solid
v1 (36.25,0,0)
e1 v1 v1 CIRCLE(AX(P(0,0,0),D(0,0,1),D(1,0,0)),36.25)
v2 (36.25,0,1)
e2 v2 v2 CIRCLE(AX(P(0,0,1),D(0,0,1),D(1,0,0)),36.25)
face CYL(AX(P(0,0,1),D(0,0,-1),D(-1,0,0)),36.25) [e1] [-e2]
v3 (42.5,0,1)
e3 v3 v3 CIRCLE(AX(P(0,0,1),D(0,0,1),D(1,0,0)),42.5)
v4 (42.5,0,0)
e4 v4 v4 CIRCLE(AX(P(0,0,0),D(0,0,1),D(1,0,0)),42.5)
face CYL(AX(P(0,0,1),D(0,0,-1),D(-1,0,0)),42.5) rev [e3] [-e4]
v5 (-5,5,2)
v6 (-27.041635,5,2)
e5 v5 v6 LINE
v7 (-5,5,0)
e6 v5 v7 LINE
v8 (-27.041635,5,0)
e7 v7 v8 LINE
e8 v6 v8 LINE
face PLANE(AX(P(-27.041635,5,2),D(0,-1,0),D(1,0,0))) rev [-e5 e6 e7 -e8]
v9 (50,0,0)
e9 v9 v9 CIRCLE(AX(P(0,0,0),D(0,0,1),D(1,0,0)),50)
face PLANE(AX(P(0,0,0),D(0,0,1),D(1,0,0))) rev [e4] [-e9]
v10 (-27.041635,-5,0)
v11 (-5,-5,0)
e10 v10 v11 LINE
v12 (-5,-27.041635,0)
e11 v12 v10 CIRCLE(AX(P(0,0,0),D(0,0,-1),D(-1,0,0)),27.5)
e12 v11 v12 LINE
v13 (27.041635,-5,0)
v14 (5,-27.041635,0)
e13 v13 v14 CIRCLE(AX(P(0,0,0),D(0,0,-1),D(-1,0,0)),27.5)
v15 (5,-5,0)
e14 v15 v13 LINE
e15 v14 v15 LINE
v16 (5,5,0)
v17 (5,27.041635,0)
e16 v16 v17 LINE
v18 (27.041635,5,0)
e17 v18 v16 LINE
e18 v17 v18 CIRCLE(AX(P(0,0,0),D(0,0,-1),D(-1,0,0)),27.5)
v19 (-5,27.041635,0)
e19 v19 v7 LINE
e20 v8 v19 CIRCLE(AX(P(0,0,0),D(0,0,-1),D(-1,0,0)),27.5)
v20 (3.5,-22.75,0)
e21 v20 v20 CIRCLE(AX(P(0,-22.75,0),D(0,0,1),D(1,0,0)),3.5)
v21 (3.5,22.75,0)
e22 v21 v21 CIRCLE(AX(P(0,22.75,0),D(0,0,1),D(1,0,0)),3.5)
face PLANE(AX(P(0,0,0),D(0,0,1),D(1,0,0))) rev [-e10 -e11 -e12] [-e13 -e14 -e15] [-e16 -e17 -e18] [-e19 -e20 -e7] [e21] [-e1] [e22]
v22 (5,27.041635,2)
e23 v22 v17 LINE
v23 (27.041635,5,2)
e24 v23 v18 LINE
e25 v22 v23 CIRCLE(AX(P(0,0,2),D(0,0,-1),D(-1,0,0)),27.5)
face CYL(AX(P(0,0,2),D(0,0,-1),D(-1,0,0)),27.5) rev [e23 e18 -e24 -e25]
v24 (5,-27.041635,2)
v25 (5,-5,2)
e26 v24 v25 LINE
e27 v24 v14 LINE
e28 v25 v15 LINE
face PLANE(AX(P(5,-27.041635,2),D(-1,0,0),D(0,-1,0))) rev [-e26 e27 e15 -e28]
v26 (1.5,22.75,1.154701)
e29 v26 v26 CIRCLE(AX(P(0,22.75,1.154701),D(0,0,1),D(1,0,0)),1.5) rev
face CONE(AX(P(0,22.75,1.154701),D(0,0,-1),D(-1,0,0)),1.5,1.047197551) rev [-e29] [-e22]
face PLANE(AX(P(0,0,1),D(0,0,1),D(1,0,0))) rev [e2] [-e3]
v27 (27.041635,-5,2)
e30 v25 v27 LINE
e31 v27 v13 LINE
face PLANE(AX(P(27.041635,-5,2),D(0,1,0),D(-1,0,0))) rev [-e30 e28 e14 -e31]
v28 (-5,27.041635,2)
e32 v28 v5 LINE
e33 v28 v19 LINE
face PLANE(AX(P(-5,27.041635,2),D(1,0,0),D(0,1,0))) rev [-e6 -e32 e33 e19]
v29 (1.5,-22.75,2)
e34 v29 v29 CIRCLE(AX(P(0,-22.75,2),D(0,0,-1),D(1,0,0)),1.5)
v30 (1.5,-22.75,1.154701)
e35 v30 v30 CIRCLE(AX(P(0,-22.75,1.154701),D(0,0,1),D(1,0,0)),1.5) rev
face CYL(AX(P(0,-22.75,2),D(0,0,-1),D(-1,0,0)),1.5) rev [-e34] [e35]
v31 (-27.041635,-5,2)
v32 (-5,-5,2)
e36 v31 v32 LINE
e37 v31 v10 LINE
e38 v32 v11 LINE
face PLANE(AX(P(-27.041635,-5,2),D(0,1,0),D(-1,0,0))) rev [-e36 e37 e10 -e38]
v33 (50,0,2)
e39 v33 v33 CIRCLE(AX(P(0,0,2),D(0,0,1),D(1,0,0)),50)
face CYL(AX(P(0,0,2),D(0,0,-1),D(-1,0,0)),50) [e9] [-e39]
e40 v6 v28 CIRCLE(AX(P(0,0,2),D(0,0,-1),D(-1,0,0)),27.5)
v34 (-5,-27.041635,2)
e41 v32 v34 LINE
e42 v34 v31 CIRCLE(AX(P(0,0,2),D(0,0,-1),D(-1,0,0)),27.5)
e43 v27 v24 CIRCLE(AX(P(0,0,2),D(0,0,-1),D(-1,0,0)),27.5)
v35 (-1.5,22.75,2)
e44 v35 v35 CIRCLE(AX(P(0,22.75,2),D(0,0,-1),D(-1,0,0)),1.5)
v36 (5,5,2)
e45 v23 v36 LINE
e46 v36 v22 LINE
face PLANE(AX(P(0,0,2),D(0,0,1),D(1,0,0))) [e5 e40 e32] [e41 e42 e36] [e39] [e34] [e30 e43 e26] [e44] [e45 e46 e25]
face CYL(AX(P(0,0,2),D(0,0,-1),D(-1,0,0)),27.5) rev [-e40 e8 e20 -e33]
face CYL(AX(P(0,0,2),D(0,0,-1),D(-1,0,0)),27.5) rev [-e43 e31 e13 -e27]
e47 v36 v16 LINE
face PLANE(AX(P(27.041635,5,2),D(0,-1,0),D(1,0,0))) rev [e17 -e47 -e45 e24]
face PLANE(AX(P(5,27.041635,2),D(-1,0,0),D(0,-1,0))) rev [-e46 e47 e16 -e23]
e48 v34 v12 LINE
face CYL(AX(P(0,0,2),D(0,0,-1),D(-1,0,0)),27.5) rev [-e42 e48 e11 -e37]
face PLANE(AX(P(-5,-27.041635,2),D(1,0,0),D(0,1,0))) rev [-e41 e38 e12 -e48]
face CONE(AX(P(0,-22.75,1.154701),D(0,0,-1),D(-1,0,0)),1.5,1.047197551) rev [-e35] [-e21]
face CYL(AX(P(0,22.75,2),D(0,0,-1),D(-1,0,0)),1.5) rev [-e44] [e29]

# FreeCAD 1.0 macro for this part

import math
import FreeCAD as App
import Part
import Sketcher

V = App.Vector
Q = App.Units.Quantity


def edges_at(feature, points):
    """Names of the edges that pass closest to the given points."""
    edges = feature.Shape.Edges
    near = lambda p: min(range(len(edges)), key=lambda i: edges[i].distToShape(Part.Vertex(*p))[0])
    return sorted({f"Edge{near(p) + 1}" for p in points})

doc = App.newDocument("Part")
body = doc.addObject("PartDesign::Body", "Body")

sketch1 = body.newObject("Sketcher::SketchObject", "Sketch")
sketch1.AttachmentSupport = (doc.getObject("XY_Plane"), [""])
sketch1.MapMode = "FlatFace"
sketch1.addGeometry(Part.Circle(V(0, 0, 0), V(0, 0, 1), 50), False)
sketch1.addConstraint([
    Sketcher.Constraint("Coincident", 0, 3, -1, 1),
    Sketcher.Constraint("Diameter", 0, Q("100 mm")),
])
pad1 = body.newObject("PartDesign::Pad", "Pad")
pad1.Profile = sketch1
pad1.Length = 2

sketch2 = body.newObject("Sketcher::SketchObject", "Sketch001")
sketch2.AttachmentSupport = (doc.getObject("XY_Plane"), [""])
sketch2.MapMode = "FlatFace"
sketch2.addGeometry([
    Part.Circle(V(0, 0, 0), V(0, 0, 1), 42),
    Part.Circle(V(0, 0, 0), V(0, 0, 1), 36),
], False)
sketch2.addConstraint([
    Sketcher.Constraint("Coincident", 0, 3, -1, 1),
    Sketcher.Constraint("Coincident", 1, 3, -1, 1),
    Sketcher.Constraint("Diameter", 0, Q("85 mm")),
    Sketcher.Constraint("Diameter", 1, Q("72.5 mm")),
])
pocket1 = body.newObject("PartDesign::Pocket", "Pocket")
pocket1.Profile = sketch2
pocket1.Length = 1
pocket1.Reversed = True

sketch3 = body.newObject("Sketcher::SketchObject", "Sketch002")
sketch3.AttachmentSupport = (doc.getObject("XY_Plane"), [""])
sketch3.MapMode = "FlatFace"
sketch3.addGeometry([
    Part.Circle(V(0, 22.8, 0), V(0, 0, 1), 1.5),
    Part.Circle(V(0, -22.8, 0), V(0, 0, 1), 1.5),
    Part.LineSegment(V(5, 5, 0), V(5, 27, 0)),
    Part.ArcOfCircle(Part.Circle(V(0, 0, 0), V(0, 0, 1), 27.5), math.radians(10), math.radians(80)),
    Part.LineSegment(V(27, 5, 0), V(5, 5, 0)),
    Part.LineSegment(V(-5, 27, 0), V(-5, 5, 0)),
    Part.LineSegment(V(-5, 5, 0), V(-27, 5, 0)),
    Part.ArcOfCircle(Part.Circle(V(0, 0, 0), V(0, 0, 1), 27.5), math.radians(100), math.radians(170)),
    Part.LineSegment(V(-27, -5, 0), V(-5, -5, 0)),
    Part.LineSegment(V(-5, -5, 0), V(-5, -27, 0)),
    Part.ArcOfCircle(Part.Circle(V(0, 0, 0), V(0, 0, 1), 27.5), math.radians(-170), math.radians(-100)),
    Part.LineSegment(V(5, -27, 0), V(5, -5, 0)),
    Part.LineSegment(V(5, -5, 0), V(27, -5, 0)),
    Part.ArcOfCircle(Part.Circle(V(0, 0, 0), V(0, 0, 1), 27.5), math.radians(-80), math.radians(-10)),
], False)
sketch3.addConstraint([
    Sketcher.Constraint("Coincident", 2, 2, 3, 2),
    Sketcher.Constraint("Coincident", 3, 1, 4, 1),
    Sketcher.Constraint("Coincident", 4, 2, 2, 1),
    Sketcher.Constraint("Coincident", 5, 2, 6, 1),
    Sketcher.Constraint("Coincident", 6, 2, 7, 2),
    Sketcher.Constraint("Coincident", 7, 1, 5, 1),
    Sketcher.Constraint("Coincident", 8, 2, 9, 1),
    Sketcher.Constraint("Coincident", 9, 2, 10, 2),
    Sketcher.Constraint("Coincident", 10, 1, 8, 1),
    Sketcher.Constraint("Coincident", 11, 2, 12, 1),
    Sketcher.Constraint("Coincident", 12, 2, 13, 2),
    Sketcher.Constraint("Coincident", 13, 1, 11, 1),
    Sketcher.Constraint("Vertical", 2),
    Sketcher.Constraint("Horizontal", 4),
    Sketcher.Constraint("Vertical", 5),
    Sketcher.Constraint("Horizontal", 6),
    Sketcher.Constraint("Horizontal", 8),
    Sketcher.Constraint("Vertical", 9),
    Sketcher.Constraint("Vertical", 11),
    Sketcher.Constraint("Horizontal", 12),
    Sketcher.Constraint("Coincident", 3, 3, -1, 1),
    Sketcher.Constraint("Coincident", 7, 3, -1, 1),
    Sketcher.Constraint("Coincident", 10, 3, -1, 1),
    Sketcher.Constraint("Coincident", 13, 3, -1, 1),
    Sketcher.Constraint("Equal", 0, 1),
    Sketcher.Constraint("Equal", 3, 7),
    Sketcher.Constraint("Equal", 7, 10),
    Sketcher.Constraint("Equal", 10, 13),
    Sketcher.Constraint("Symmetric", 0, 3, 1, 3, -1, 1),
    Sketcher.Constraint("Symmetric", 4, 2, 8, 2, -1, 1),
    Sketcher.Constraint("Symmetric", 5, 2, 11, 2, -1, 1),
    Sketcher.Constraint("Symmetric", 4, 2, 5, 2, -2),
    Sketcher.Constraint("PointOnObject", 0, 3, -2),
    Sketcher.Constraint("Equal", 12, 2),
    Sketcher.Constraint("Diameter", 0, Q("3 mm")),
    Sketcher.Constraint("Radius", 3, Q("27.5 mm")),
    Sketcher.Constraint("DistanceX", -1, 1, 2, 2, Q("5 mm")),
    Sketcher.Constraint("DistanceY", 1, 3, 0, 3, Q("45.5 mm")),
])
pocket2 = body.newObject("PartDesign::Pocket", "Pocket001")
pocket2.Profile = sketch3
pocket2.Type = "ThroughAll"
pocket2.Reversed = True
doc.recompute()

chamfer = body.newObject("PartDesign::Chamfer", "Chamfer")
chamfer.Base = (pocket2, edges_at(pocket2, [(1.5, 22.75, 0), (-1.5, -22.75, 0)]))
chamfer.ChamferType = "Two distances"
chamfer.Size = 2
chamfer.Size2 = 1.154701
chamfer.FlipDirection = True

doc.recompute()
